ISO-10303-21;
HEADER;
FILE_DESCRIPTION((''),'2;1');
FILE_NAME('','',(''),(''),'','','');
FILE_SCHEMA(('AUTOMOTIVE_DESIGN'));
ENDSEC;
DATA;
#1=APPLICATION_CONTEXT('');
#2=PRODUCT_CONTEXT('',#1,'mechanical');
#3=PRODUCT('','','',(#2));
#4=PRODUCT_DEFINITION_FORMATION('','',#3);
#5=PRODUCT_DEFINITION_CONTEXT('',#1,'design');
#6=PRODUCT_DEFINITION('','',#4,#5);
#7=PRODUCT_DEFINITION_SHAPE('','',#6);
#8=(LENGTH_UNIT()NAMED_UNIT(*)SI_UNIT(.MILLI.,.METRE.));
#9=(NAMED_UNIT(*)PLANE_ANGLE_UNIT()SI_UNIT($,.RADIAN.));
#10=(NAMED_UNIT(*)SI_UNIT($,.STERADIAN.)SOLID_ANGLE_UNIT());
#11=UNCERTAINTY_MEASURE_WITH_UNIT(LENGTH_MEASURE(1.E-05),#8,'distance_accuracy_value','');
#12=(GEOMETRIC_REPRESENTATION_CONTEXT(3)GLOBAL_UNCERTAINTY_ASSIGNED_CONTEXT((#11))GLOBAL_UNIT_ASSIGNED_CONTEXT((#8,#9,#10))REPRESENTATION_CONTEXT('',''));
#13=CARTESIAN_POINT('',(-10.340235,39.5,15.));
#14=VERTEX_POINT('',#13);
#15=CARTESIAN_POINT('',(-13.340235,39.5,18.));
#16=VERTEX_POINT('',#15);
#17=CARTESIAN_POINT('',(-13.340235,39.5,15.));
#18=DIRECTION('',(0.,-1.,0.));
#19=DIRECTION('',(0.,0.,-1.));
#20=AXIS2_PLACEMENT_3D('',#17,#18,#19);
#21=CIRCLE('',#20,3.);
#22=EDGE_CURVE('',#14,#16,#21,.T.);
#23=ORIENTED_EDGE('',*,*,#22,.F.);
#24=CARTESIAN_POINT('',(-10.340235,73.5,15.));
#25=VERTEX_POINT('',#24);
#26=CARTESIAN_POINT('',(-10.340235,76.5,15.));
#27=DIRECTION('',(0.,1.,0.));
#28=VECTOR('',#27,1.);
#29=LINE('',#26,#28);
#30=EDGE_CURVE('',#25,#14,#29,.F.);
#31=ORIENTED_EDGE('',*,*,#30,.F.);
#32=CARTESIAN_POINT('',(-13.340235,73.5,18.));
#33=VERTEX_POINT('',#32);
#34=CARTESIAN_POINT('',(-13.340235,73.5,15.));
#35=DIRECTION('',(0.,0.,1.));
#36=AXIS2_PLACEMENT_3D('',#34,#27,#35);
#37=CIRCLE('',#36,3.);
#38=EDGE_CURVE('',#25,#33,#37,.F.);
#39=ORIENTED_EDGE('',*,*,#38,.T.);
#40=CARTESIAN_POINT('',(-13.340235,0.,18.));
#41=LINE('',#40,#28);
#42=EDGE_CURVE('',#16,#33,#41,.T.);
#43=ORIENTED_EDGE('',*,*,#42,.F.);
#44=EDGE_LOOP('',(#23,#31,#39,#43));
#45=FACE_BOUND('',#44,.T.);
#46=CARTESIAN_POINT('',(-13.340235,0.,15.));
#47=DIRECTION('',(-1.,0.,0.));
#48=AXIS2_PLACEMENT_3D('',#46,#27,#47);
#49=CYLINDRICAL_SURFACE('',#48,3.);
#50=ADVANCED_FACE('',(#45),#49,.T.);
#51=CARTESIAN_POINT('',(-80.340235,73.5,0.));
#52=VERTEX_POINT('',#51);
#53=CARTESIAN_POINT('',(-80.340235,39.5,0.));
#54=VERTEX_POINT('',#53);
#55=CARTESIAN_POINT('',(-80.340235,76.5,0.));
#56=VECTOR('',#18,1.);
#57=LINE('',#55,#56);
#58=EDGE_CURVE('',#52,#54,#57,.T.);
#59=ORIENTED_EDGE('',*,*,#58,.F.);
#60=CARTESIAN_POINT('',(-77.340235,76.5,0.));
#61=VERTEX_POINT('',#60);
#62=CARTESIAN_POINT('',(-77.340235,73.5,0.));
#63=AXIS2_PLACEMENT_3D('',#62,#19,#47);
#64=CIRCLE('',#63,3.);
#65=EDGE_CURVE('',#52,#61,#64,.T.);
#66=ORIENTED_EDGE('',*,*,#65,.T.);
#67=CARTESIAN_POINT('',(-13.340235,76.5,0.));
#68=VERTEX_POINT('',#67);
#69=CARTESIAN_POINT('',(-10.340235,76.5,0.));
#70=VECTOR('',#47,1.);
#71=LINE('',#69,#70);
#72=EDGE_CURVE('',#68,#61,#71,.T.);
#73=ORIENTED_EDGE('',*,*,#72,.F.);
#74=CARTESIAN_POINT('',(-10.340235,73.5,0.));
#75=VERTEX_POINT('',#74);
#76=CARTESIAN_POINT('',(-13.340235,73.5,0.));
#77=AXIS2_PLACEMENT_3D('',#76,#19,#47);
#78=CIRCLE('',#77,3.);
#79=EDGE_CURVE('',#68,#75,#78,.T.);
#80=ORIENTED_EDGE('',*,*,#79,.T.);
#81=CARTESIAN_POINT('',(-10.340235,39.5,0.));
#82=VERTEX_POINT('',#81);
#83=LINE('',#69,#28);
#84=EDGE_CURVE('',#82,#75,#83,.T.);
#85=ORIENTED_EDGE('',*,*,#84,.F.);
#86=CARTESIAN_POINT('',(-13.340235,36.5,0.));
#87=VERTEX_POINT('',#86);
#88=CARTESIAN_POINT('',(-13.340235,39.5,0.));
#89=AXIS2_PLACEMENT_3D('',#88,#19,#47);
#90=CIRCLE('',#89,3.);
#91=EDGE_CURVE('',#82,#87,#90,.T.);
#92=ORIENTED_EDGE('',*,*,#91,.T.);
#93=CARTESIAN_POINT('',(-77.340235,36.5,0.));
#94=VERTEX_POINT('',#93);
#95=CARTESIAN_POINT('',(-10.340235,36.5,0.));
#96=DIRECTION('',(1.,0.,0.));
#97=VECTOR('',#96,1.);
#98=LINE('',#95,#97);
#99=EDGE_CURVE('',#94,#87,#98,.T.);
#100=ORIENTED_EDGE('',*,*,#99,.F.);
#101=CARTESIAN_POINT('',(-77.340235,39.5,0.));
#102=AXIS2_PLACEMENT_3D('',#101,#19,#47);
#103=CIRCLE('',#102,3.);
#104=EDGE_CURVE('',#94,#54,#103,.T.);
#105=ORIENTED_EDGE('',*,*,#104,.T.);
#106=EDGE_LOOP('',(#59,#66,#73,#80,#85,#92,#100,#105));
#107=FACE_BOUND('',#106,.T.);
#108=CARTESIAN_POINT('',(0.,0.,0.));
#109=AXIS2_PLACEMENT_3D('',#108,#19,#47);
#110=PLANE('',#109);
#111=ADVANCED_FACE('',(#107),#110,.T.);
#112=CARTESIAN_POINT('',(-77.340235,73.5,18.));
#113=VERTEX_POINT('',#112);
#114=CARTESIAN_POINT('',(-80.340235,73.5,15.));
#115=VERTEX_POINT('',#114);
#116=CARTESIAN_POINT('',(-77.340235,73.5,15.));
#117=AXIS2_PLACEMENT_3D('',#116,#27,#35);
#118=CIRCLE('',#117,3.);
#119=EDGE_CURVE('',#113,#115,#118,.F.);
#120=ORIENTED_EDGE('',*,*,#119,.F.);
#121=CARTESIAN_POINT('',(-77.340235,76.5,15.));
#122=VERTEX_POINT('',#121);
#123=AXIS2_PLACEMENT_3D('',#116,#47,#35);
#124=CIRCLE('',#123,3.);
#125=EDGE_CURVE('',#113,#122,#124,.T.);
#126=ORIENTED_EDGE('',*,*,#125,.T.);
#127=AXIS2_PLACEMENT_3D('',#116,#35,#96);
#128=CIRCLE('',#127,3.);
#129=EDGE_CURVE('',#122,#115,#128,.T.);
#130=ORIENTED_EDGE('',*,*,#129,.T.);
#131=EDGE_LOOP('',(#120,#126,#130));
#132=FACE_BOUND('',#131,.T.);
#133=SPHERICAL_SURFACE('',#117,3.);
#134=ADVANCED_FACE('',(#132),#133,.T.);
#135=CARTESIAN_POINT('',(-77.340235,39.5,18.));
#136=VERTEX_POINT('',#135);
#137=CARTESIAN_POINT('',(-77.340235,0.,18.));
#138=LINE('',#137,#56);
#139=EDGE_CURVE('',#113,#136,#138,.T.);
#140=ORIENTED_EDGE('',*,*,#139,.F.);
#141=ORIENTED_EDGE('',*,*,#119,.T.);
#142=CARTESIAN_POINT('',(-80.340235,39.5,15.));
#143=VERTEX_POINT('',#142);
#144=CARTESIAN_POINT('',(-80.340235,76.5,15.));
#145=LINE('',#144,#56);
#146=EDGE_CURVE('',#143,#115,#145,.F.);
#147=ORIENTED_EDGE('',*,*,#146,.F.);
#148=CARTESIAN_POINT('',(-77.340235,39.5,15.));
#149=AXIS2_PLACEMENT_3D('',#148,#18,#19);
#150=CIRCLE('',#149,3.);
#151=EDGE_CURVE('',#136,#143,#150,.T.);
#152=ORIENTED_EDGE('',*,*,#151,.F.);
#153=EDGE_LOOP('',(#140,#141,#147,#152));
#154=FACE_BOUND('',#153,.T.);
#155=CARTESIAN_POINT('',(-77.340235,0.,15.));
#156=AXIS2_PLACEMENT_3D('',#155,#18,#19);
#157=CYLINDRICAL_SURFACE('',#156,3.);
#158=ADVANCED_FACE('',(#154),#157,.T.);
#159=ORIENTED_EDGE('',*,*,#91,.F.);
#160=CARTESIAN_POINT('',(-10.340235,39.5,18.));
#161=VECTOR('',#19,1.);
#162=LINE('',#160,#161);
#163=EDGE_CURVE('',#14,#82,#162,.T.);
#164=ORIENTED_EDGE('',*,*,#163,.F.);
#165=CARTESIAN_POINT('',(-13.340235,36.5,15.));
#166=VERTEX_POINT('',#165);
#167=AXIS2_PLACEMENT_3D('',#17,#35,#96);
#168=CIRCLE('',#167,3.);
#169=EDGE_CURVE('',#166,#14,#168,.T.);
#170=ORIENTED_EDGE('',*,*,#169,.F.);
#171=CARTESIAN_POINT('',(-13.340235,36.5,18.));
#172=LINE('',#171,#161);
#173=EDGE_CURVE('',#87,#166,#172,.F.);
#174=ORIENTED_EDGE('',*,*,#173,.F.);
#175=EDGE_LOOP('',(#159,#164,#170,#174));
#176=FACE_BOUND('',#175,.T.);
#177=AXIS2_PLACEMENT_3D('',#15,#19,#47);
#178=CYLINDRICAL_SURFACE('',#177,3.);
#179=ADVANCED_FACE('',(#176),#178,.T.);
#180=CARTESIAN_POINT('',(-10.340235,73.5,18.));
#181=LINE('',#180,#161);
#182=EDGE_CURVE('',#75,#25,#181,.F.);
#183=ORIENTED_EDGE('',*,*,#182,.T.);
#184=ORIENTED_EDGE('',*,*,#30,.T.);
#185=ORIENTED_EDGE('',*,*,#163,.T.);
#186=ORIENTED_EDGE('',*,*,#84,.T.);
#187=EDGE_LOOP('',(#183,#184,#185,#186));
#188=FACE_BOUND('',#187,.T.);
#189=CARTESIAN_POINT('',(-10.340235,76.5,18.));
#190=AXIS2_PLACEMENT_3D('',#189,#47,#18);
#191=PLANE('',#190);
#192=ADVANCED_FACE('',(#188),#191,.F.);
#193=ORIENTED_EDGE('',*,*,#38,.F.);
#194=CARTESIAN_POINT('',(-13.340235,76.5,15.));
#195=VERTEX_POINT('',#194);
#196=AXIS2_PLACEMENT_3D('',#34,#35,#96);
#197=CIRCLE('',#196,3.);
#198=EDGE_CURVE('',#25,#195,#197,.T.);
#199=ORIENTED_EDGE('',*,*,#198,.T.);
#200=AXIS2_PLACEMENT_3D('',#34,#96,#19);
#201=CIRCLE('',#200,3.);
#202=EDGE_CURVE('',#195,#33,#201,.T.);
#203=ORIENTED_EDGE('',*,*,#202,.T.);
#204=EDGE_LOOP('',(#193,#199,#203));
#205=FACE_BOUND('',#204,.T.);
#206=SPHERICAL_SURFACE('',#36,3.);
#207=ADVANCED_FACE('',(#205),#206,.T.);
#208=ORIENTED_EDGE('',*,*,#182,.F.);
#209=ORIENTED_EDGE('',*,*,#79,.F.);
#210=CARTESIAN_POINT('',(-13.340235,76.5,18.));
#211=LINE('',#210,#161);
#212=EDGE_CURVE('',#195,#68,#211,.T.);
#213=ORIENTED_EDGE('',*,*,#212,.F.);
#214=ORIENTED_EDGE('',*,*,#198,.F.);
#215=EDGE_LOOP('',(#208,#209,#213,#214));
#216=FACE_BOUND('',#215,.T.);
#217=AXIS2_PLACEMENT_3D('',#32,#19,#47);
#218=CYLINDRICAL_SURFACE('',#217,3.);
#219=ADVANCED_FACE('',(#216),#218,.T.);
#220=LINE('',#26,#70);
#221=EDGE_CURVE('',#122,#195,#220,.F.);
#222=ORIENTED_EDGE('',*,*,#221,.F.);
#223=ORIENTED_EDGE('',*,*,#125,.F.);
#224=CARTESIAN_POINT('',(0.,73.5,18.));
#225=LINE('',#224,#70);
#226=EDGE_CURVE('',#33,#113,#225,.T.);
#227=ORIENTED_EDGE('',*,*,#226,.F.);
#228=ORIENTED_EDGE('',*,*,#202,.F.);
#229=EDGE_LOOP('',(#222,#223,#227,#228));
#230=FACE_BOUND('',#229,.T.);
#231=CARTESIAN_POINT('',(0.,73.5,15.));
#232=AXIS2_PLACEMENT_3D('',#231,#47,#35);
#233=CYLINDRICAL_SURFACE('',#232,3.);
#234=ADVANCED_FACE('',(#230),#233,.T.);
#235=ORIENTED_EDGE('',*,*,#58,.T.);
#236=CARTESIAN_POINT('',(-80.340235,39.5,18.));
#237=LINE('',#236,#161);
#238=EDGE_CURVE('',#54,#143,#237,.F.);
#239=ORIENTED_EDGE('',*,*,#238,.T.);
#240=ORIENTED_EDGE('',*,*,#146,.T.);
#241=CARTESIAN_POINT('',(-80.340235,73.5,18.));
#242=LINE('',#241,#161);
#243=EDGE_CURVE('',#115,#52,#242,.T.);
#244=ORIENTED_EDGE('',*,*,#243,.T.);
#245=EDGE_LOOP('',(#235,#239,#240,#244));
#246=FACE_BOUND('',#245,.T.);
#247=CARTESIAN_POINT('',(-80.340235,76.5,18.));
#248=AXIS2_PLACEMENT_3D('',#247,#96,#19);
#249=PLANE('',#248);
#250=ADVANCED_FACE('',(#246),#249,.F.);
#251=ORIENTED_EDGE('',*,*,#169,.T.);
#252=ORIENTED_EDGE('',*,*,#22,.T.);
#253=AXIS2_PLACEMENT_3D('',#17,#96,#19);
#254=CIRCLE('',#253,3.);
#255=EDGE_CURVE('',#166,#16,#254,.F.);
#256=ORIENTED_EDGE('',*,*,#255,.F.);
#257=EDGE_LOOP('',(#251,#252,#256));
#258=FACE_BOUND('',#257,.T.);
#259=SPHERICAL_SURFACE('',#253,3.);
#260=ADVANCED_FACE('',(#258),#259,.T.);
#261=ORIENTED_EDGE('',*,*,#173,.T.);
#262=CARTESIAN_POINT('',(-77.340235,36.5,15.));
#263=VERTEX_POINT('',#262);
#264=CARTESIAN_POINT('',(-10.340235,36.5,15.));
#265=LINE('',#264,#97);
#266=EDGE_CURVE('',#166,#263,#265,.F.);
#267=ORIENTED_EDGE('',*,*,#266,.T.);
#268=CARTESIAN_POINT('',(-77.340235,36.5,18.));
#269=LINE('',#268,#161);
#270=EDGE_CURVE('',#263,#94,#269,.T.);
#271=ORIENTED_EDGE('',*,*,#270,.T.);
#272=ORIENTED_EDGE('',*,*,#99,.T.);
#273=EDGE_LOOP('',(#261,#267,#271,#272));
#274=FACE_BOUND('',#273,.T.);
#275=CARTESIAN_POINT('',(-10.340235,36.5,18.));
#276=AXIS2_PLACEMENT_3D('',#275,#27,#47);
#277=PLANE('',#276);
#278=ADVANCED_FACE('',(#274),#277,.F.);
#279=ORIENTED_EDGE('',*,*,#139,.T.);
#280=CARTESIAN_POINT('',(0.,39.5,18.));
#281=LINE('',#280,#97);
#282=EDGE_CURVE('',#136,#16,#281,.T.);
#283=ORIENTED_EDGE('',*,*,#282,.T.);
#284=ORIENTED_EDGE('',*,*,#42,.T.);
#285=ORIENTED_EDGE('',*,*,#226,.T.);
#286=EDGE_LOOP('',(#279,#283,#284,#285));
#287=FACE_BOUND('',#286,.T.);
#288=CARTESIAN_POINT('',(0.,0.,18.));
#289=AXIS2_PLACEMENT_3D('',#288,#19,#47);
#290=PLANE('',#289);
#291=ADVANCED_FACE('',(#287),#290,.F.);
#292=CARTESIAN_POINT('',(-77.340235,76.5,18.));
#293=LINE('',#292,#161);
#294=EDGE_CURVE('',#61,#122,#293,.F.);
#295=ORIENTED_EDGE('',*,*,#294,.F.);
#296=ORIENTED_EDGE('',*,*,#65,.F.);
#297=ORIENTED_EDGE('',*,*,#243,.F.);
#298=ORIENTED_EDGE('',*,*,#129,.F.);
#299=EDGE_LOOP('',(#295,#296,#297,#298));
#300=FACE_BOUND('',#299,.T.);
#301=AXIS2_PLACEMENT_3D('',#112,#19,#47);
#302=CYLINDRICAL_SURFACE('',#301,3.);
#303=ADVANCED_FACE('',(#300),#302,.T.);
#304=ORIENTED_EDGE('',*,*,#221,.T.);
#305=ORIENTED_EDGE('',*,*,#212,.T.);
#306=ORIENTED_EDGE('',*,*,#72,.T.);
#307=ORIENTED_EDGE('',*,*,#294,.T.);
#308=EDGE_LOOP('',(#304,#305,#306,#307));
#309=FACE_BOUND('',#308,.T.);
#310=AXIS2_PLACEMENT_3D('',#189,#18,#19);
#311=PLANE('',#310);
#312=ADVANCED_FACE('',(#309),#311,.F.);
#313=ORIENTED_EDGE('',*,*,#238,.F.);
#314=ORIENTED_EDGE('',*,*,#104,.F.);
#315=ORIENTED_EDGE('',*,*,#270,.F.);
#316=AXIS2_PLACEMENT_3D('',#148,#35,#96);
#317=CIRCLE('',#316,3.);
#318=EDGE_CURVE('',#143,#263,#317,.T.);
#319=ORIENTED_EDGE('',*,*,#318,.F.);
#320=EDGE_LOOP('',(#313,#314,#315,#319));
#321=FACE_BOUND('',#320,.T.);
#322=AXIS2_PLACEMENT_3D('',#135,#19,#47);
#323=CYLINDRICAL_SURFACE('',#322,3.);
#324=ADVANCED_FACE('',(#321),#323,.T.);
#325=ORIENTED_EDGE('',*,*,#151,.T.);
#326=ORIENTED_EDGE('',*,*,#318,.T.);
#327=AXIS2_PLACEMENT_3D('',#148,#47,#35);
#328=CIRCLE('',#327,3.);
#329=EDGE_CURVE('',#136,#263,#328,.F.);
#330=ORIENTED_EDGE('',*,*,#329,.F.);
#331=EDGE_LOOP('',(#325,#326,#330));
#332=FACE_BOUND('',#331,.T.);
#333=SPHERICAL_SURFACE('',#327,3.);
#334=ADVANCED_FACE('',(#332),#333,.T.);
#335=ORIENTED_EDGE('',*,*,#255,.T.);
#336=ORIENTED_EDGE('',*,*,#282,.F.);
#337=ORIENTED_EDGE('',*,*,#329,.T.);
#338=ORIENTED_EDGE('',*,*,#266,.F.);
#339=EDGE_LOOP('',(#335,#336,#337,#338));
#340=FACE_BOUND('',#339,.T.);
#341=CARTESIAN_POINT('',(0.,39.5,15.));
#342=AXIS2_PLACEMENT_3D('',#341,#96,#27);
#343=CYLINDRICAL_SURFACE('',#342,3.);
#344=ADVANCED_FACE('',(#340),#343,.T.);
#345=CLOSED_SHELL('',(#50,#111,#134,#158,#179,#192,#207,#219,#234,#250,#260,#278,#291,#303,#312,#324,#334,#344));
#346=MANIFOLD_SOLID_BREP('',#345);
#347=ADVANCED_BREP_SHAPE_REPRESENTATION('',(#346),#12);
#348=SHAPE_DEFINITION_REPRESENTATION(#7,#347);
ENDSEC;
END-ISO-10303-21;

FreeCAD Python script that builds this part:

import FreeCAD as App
import Part
import Sketcher
from FreeCAD import Vector


def edges_at(feature, points):
    """Names of the edges that pass closest to the given points."""
    edges = feature.Shape.Edges
    near = lambda p: min(range(len(edges)), key=lambda i: edges[i].distToShape(Part.Vertex(*p))[0])
    return sorted({f"Edge{near(p) + 1}" for p in points})


def add_polygon(sketch, points):
    """Adds a closed chain of lines whose ends are joined by coincident constraints."""
    first, n = sketch.GeometryCount, len(points)
    for a, b in zip(points, points[1:] + points[:1]):
        sketch.addGeometry(Part.LineSegment(App.Vector(*a, 0), App.Vector(*b, 0)), False)
    for i in range(n):
        sketch.addConstraint(Sketcher.Constraint("Coincident", first + i, 2, first + (i + 1) % n, 1))

doc = App.newDocument("Part")
body = doc.addObject("PartDesign::Body", "Body")

sketch1 = body.newObject("Sketcher::SketchObject", "Sketch")
sketch1.AttachmentSupport = (doc.getObject("XY_Plane"), [""])
sketch1.MapMode = "FlatFace"
add_polygon(sketch1, [(-80, 76), (-80, 36), (-10, 36), (-10, 76)])
sketch1.addConstraint([
    Sketcher.Constraint("Vertical", 0),
    Sketcher.Constraint("Horizontal", 1),
    Sketcher.Constraint("Vertical", 2),
    Sketcher.Constraint("Horizontal", 3),
    Sketcher.Constraint("DistanceX", 1, 1, 1, 2, 70.0),
    Sketcher.Constraint("DistanceY", 0, 2, 0, 1, 40.0),
    Sketcher.Constraint("DistanceY", -1, 1, 0, 2, 36.5),
    Sketcher.Constraint("DistanceX", 0, 2, -1, 1, 80.340235),
])
pad1 = body.newObject("PartDesign::Pad", "Pad")
pad1.Profile = sketch1
pad1.Length = 18
doc.recompute()

fillet = body.newObject("PartDesign::Fillet", "Fillet")
fillet.Base = (pad1, edges_at(pad1, [
    (-80.34, 56.5, 18),
    (-45.34, 36.5, 18),
    (-10.34, 56.5, 18),
    (-10.34, 36.5, 9),
    (-80.34, 36.5, 9),
    (-80.34, 76.5, 9),
    (-10.34, 76.5, 9),
    (-45.34, 76.5, 18),
]))
fillet.Radius = 3

doc.recompute()
